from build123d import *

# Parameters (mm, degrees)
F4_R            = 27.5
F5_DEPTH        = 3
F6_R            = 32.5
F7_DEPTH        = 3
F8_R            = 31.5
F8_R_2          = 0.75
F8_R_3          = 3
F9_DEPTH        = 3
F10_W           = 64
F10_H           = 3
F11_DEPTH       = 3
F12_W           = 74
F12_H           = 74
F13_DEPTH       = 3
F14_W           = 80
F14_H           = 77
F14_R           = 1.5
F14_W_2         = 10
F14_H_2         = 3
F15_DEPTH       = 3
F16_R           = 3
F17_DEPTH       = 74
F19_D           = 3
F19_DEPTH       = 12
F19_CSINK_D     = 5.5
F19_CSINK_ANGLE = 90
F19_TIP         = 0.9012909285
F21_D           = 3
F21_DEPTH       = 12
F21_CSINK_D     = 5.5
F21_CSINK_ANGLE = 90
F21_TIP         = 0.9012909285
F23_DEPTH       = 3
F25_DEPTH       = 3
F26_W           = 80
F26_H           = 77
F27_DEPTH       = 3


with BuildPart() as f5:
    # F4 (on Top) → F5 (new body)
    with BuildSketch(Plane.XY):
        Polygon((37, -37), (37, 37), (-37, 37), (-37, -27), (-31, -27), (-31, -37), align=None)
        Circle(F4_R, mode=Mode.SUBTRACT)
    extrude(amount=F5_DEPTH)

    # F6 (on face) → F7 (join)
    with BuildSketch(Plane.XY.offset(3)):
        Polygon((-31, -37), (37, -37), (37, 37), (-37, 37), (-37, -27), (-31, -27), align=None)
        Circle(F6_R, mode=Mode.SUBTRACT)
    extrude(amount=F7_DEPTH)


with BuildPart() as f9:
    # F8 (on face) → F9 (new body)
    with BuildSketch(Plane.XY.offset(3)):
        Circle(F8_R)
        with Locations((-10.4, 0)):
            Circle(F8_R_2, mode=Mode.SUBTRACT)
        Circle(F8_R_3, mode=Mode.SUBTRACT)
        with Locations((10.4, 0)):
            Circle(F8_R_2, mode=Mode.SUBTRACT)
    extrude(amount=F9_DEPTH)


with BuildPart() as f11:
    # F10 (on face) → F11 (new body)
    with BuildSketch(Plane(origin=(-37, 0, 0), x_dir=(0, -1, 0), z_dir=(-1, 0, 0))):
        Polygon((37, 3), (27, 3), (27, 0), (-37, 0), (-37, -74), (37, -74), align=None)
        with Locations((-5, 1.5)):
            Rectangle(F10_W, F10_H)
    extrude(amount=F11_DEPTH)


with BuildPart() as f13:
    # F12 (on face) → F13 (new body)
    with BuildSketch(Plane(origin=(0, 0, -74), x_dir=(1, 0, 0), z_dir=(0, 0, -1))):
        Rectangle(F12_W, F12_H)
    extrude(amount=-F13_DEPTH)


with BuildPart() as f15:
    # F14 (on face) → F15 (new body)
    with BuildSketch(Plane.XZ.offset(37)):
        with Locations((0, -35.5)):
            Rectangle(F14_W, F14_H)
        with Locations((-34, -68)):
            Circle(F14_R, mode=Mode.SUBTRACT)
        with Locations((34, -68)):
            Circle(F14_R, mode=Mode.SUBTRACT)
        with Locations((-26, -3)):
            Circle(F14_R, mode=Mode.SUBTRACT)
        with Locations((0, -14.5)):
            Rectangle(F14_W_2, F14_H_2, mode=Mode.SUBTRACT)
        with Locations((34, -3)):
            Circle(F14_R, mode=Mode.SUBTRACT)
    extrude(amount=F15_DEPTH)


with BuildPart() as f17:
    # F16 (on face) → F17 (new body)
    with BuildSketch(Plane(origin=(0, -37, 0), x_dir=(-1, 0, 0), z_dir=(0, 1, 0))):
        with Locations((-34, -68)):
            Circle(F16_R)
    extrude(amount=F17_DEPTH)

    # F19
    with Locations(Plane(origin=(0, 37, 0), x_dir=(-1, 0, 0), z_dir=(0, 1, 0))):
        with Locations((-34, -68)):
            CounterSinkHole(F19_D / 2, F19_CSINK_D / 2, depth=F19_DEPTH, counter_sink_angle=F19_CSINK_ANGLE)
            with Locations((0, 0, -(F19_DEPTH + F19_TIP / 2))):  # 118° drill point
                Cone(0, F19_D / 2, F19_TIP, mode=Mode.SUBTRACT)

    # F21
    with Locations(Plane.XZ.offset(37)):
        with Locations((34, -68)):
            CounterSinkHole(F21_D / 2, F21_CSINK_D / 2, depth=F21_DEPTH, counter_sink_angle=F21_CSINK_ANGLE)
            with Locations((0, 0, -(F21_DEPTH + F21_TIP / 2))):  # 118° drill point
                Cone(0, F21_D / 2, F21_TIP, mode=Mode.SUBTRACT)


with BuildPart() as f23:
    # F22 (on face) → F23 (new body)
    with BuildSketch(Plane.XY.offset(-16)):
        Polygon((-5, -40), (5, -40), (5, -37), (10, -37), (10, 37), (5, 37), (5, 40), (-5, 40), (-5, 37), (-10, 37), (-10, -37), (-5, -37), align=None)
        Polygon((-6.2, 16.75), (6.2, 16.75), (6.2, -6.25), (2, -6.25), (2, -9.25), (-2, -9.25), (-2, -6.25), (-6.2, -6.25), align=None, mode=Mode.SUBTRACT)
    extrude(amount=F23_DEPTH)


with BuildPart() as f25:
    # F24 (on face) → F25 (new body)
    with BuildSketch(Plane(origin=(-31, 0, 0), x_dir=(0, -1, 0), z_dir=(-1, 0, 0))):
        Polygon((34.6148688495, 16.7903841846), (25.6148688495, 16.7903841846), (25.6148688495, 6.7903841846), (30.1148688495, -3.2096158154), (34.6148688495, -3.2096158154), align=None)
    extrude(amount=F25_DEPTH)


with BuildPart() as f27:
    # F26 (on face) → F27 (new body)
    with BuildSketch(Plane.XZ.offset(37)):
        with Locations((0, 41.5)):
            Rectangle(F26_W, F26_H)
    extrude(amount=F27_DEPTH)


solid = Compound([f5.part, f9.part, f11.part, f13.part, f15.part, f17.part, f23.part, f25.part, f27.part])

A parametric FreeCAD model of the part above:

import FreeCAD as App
import Part
import Sketcher
from FreeCAD import Vector


def add_polygon(sketch, points):
    """Adds a closed chain of lines whose ends are joined by coincident constraints."""
    first, n = sketch.GeometryCount, len(points)
    for a, b in zip(points, points[1:] + points[:1]):
        sketch.addGeometry(Part.LineSegment(App.Vector(*a, 0), App.Vector(*b, 0)), False)
    for i in range(n):
        sketch.addConstraint(Sketcher.Constraint("Coincident", first + i, 2, first + (i + 1) % n, 1))

doc = App.newDocument("Part")
body = doc.addObject("PartDesign::Body", "Body")

# Sketch on XY plane
sketch1 = body.newObject("Sketcher::SketchObject", "Sketch")
sketch1.AttachmentSupport = (doc.getObject("XY_Plane"), [""])
sketch1.MapMode = "FlatFace"
add_polygon(sketch1, [(37, -37), (37, 37), (-37, 37), (-37, -27), (-31, -27), (-31, -37)])  # lines 0-5
sketch1.addGeometry(Part.Circle(Vector(0, 0, 0), Vector(0, 0, 1), 27.5), False)  # 6
sketch1.addConstraint(Sketcher.Constraint("Vertical", 0))
sketch1.addConstraint(Sketcher.Constraint("Horizontal", 1))
sketch1.addConstraint(Sketcher.Constraint("Vertical", 2))
sketch1.addConstraint(Sketcher.Constraint("Horizontal", 3))
sketch1.addConstraint(Sketcher.Constraint("Vertical", 4))
sketch1.addConstraint(Sketcher.Constraint("Horizontal", 5))
sketch1.addConstraint(Sketcher.Constraint("Coincident", 6, 3, -1, 1))
sketch1.addConstraint(Sketcher.Constraint("Symmetric", 1, 2, 5, 2, -1, 1))
sketch1.addConstraint(Sketcher.Constraint("Equal", 1, 0))
sketch1.addConstraint(Sketcher.Constraint("Diameter", 6, 55.0))
sketch1.addConstraint(Sketcher.Constraint("DistanceX", 1, 2, 1, 1, 74.0))
sketch1.addConstraint(Sketcher.Constraint("DistanceX", 3, 1, 3, 2, 6.0))
sketch1.addConstraint(Sketcher.Constraint("DistanceY", 2, 2, 2, 1, 64.0))
pad1 = body.newObject("PartDesign::Pad", "Pad")
pad1.Profile = sketch1
pad1.Length = 3

# Sketch on XY plane
sketch2 = body.newObject("Sketcher::SketchObject", "Sketch001")
sketch2.AttachmentSupport = (doc.getObject("XY_Plane"), [""])
sketch2.MapMode = "FlatFace"
sketch2.AttachmentOffset = App.Placement(Vector(0, 0, 3), App.Rotation())
add_polygon(sketch2, [(-31, -37), (37, -37), (37, 37), (-37, 37), (-37, -27), (-31, -27)])  # lines 0-5
sketch2.addGeometry(Part.Circle(Vector(0, 0, 0), Vector(0, 0, 1), 32.5), False)  # 6
sketch2.addConstraint(Sketcher.Constraint("Horizontal", 0))
sketch2.addConstraint(Sketcher.Constraint("Vertical", 1))
sketch2.addConstraint(Sketcher.Constraint("Horizontal", 2))
sketch2.addConstraint(Sketcher.Constraint("Vertical", 3))
sketch2.addConstraint(Sketcher.Constraint("Horizontal", 4))
sketch2.addConstraint(Sketcher.Constraint("Vertical", 5))
sketch2.addConstraint(Sketcher.Constraint("Coincident", 6, 3, -1, 1))
sketch2.addConstraint(Sketcher.Constraint("Symmetric", 0, 2, 2, 2, -1, 1))
sketch2.addConstraint(Sketcher.Constraint("Equal", 2, 1))
sketch2.addConstraint(Sketcher.Constraint("Diameter", 6, 65.0))
sketch2.addConstraint(Sketcher.Constraint("DistanceX", 0, 1, 0, 2, 68.0))
sketch2.addConstraint(Sketcher.Constraint("DistanceX", 2, 2, 2, 1, 74.0))
sketch2.addConstraint(Sketcher.Constraint("DistanceY", 3, 2, 3, 1, 64.0))
pad2 = body.newObject("PartDesign::Pad", "Pad001")
pad2.Profile = sketch2
pad2.Length = 3
body2 = doc.addObject("PartDesign::Body", "Body001")

# Sketch on XY plane
sketch3 = body2.newObject("Sketcher::SketchObject", "Sketch002")
sketch3.AttachmentSupport = (doc.getObject("XY_Plane001"), [""])
sketch3.MapMode = "FlatFace"
sketch3.AttachmentOffset = App.Placement(Vector(0, 0, 3), App.Rotation())
sketch3.addGeometry(Part.Circle(Vector(0, 0, 0), Vector(0, 0, 1), 31.5), False)
sketch3.addGeometry(Part.Circle(Vector(-10.4, 0, 0), Vector(0, 0, 1), 0.75), False)
sketch3.addGeometry(Part.Circle(Vector(0, 0, 0), Vector(0, 0, 1), 3), False)
sketch3.addGeometry(Part.Circle(Vector(10.4, 0, 0), Vector(0, 0, 1), 0.75), False)
sketch3.addConstraint(Sketcher.Constraint("Coincident", 0, 3, -1, 1))
sketch3.addConstraint(Sketcher.Constraint("Coincident", 2, 3, -1, 1))
sketch3.addConstraint(Sketcher.Constraint("Equal", 1, 3))
sketch3.addConstraint(Sketcher.Constraint("Symmetric", 1, 3, 3, 3, -1, 1))
sketch3.addConstraint(Sketcher.Constraint("PointOnObject", 1, 3, -1))
sketch3.addConstraint(Sketcher.Constraint("Diameter", 0, 63.0))
sketch3.addConstraint(Sketcher.Constraint("Diameter", 2, 6.0))
sketch3.addConstraint(Sketcher.Constraint("Diameter", 1, 1.5))
sketch3.addConstraint(Sketcher.Constraint("DistanceX", 1, 3, -1, 1, 10.4))
pad3 = body2.newObject("PartDesign::Pad", "Pad002")
pad3.Profile = sketch3
pad3.Length = 3
body3 = doc.addObject("PartDesign::Body", "Body002")

# Sketch on YZ plane
sketch4 = body3.newObject("Sketcher::SketchObject", "Sketch003")
sketch4.AttachmentSupport = (doc.getObject("YZ_Plane002"), [""])
sketch4.MapMode = "FlatFace"
sketch4.AttachmentOffset = App.Placement(Vector(0, 0, -37), App.Rotation())
add_polygon(sketch4, [(-37, 3), (37, 3), (37, -74), (-37, -74)])  # lines 0-3
sketch4.addConstraint(Sketcher.Constraint("Horizontal", 0))
sketch4.addConstraint(Sketcher.Constraint("Vertical", 1))
sketch4.addConstraint(Sketcher.Constraint("Horizontal", 2))
sketch4.addConstraint(Sketcher.Constraint("Vertical", 3))
sketch4.addConstraint(Sketcher.Constraint("DistanceX", 0, 1, 0, 2, 74.0))
sketch4.addConstraint(Sketcher.Constraint("DistanceY", 1, 2, 1, 1, 77.0))
sketch4.addConstraint(Sketcher.Constraint("DistanceX", -1, 1, 0, 2, 37.0))
sketch4.addConstraint(Sketcher.Constraint("DistanceY", -1, 1, 0, 2, 3.0))
pad4 = body3.newObject("PartDesign::Pad", "Pad003")
pad4.Profile = sketch4
pad4.Length = 3
pad4.Reversed = True
body4 = doc.addObject("PartDesign::Body", "Body003")

# Sketch on XY plane
sketch5 = body4.newObject("Sketcher::SketchObject", "Sketch004")
sketch5.AttachmentSupport = (doc.getObject("XY_Plane003"), [""])
sketch5.MapMode = "FlatFace"
sketch5.AttachmentOffset = App.Placement(Vector(0, 0, -74), App.Rotation())
add_polygon(sketch5, [(-37, -37), (-37, 37), (37, 37), (37, -37)])  # lines 0-3
sketch5.addConstraint(Sketcher.Constraint("Vertical", 0))
sketch5.addConstraint(Sketcher.Constraint("Horizontal", 1))
sketch5.addConstraint(Sketcher.Constraint("Vertical", 2))
sketch5.addConstraint(Sketcher.Constraint("Horizontal", 3))
sketch5.addConstraint(Sketcher.Constraint("Symmetric", 0, 2, 2, 2, -1, 1))
sketch5.addConstraint(Sketcher.Constraint("Equal", 3, 0))
sketch5.addConstraint(Sketcher.Constraint("DistanceX", 1, 1, 1, 2, 74.0))
pad5 = body4.newObject("PartDesign::Pad", "Pad004")
pad5.Profile = sketch5
pad5.Length = 3
body5 = doc.addObject("PartDesign::Body", "Body004")

# Sketch on XZ plane
sketch6 = body5.newObject("Sketcher::SketchObject", "Sketch005")
sketch6.AttachmentSupport = (doc.getObject("XZ_Plane004"), [""])
sketch6.MapMode = "FlatFace"
sketch6.AttachmentOffset = App.Placement(Vector(0, 0, 37), App.Rotation())
add_polygon(sketch6, [(-40, 3), (-40, -74), (40, -74), (40, 3)])  # lines 0-3
sketch6.addGeometry(Part.Circle(Vector(-34, -68, 0), Vector(0, 0, 1), 1.5), False)  # 4
sketch6.addGeometry(Part.Circle(Vector(34, -68, 0), Vector(0, 0, 1), 1.5), False)  # 5
sketch6.addGeometry(Part.Circle(Vector(-26, -3, 0), Vector(0, 0, 1), 1.5), False)  # 6
add_polygon(sketch6, [(5, -16), (-5, -16), (-5, -13), (5, -13)])  # lines 7-10
sketch6.addGeometry(Part.Circle(Vector(34, -3, 0), Vector(0, 0, 1), 1.5), False)  # 11
sketch6.addConstraint(Sketcher.Constraint("Vertical", 0))
sketch6.addConstraint(Sketcher.Constraint("Horizontal", 1))
sketch6.addConstraint(Sketcher.Constraint("Vertical", 2))
sketch6.addConstraint(Sketcher.Constraint("Horizontal", 3))
sketch6.addConstraint(Sketcher.Constraint("Horizontal", 7))
sketch6.addConstraint(Sketcher.Constraint("Vertical", 8))
sketch6.addConstraint(Sketcher.Constraint("Horizontal", 9))
sketch6.addConstraint(Sketcher.Constraint("Vertical", 10))
sketch6.addConstraint(Sketcher.Constraint("Equal", 4, 5))
sketch6.addConstraint(Sketcher.Constraint("Equal", 5, 6))
sketch6.addConstraint(Sketcher.Constraint("Equal", 6, 11))
sketch6.addConstraint(Sketcher.Constraint("Symmetric", 4, 3, 5, 3, -2))
sketch6.addConstraint(Sketcher.Constraint("Horizontal", 6, 3, 11, 3))
sketch6.addConstraint(Sketcher.Constraint("Vertical", 5, 3, 11, 3))
sketch6.addConstraint(Sketcher.Constraint("Diameter", 4, 3.0))
sketch6.addConstraint(Sketcher.Constraint("DistanceX", 1, 1, 1, 2, 80.0))
sketch6.addConstraint(Sketcher.Constraint("DistanceX", 7, 2, 7, 1, 10.0))
sketch6.addConstraint(Sketcher.Constraint("DistanceY", 0, 2, 0, 1, 77.0))
sketch6.addConstraint(Sketcher.Constraint("DistanceY", 8, 1, 8, 2, 3.0))
sketch6.addConstraint(Sketcher.Constraint("DistanceX", 4, 3, -1, 1, 34.0))
sketch6.addConstraint(Sketcher.Constraint("DistanceY", 4, 3, -1, 1, 68.0))
sketch6.addConstraint(Sketcher.Constraint("DistanceX", 6, 3, -1, 1, 26.0))
sketch6.addConstraint(Sketcher.Constraint("DistanceY", 6, 3, -1, 1, 3.0))
sketch6.addConstraint(Sketcher.Constraint("DistanceX", 0, 2, -1, 1, 40.0))
sketch6.addConstraint(Sketcher.Constraint("DistanceY", 0, 2, -1, 1, 74.0))
sketch6.addConstraint(Sketcher.Constraint("DistanceX", 7, 2, -1, 1, 5.0))
sketch6.addConstraint(Sketcher.Constraint("DistanceY", 7, 2, -1, 1, 16.0))
pad6 = body5.newObject("PartDesign::Pad", "Pad005")
pad6.Profile = sketch6
pad6.Length = 3
body6 = doc.addObject("PartDesign::Body", "Body005")

# Sketch on XZ plane
sketch7 = body6.newObject("Sketcher::SketchObject", "Sketch006")
sketch7.AttachmentSupport = (doc.getObject("XZ_Plane005"), [""])
sketch7.MapMode = "FlatFace"
sketch7.AttachmentOffset = App.Placement(Vector(0, 0, 37), App.Rotation())
sketch7.addGeometry(Part.Circle(Vector(34, -68, 0), Vector(0, 0, 1), 3), False)
sketch7.addConstraint(Sketcher.Constraint("Diameter", 0, 6.0))
sketch7.addConstraint(Sketcher.Constraint("DistanceX", -1, 1, 0, 3, 34.0))
sketch7.addConstraint(Sketcher.Constraint("DistanceY", 0, 3, -1, 1, 68.0))
pad7 = body6.newObject("PartDesign::Pad", "Pad006")
pad7.Profile = sketch7
pad7.Length = 74
pad7.Reversed = True

# Sketch on XZ plane
sketch8 = body6.newObject("Sketcher::SketchObject", "Sketch007")
sketch8.AttachmentSupport = (doc.getObject("XZ_Plane005"), [""])
sketch8.MapMode = "FlatFace"
sketch8.AttachmentOffset = App.Placement(Vector(0, 0, -37), App.Rotation())
sketch8.addGeometry(Part.Circle(Vector(34, -68, 0), Vector(0, 0, 1), 1.5), False)
sketch8.addConstraint(Sketcher.Constraint("Diameter", 0, 3.0))
sketch8.addConstraint(Sketcher.Constraint("DistanceX", -1, 1, 0, 3, 34.0))
sketch8.addConstraint(Sketcher.Constraint("DistanceY", 0, 3, -1, 1, 68.0))
doc.recompute()
hole = body6.newObject("PartDesign::Hole", "Hole")
hole.Profile = sketch8
hole.ThreadType = "None"
hole.Diameter = 3
hole.DepthType = "Dimension"
hole.Depth = 12
hole.DrillPoint = "Angled"
hole.DrillPointAngle = 118
hole.HoleCutType = "Countersink"
hole.HoleCutDiameter = 5.5
hole.HoleCutCountersinkAngle = 90
hole.Reversed = True

# Sketch on XZ plane
sketch9 = body6.newObject("Sketcher::SketchObject", "Sketch008")
sketch9.AttachmentSupport = (doc.getObject("XZ_Plane005"), [""])
sketch9.MapMode = "FlatFace"
sketch9.AttachmentOffset = App.Placement(Vector(0, 0, 37), App.Rotation())
sketch9.addGeometry(Part.Circle(Vector(34, -68, 0), Vector(0, 0, 1), 1.5), False)
sketch9.addConstraint(Sketcher.Constraint("Diameter", 0, 3.0))
sketch9.addConstraint(Sketcher.Constraint("DistanceX", -1, 1, 0, 3, 34.0))
sketch9.addConstraint(Sketcher.Constraint("DistanceY", 0, 3, -1, 1, 68.0))
doc.recompute()
hole2 = body6.newObject("PartDesign::Hole", "Hole001")
hole2.Profile = sketch9
hole2.ThreadType = "None"
hole2.Diameter = 3
hole2.DepthType = "Dimension"
hole2.Depth = 12
hole2.DrillPoint = "Angled"
hole2.DrillPointAngle = 118
hole2.HoleCutType = "Countersink"
hole2.HoleCutDiameter = 5.5
hole2.HoleCutCountersinkAngle = 90
body7 = doc.addObject("PartDesign::Body", "Body006")

# Sketch on XY plane
sketch10 = body7.newObject("Sketcher::SketchObject", "Sketch009")
sketch10.AttachmentSupport = (doc.getObject("XY_Plane006"), [""])
sketch10.MapMode = "FlatFace"
sketch10.AttachmentOffset = App.Placement(Vector(0, 0, -16), App.Rotation())
add_polygon(sketch10, [(-5, -40), (5, -40), (5, -37), (10, -37), (10, 37), (5, 37), (5, 40), (-5, 40), (-5, 37), (-10, 37), (-10, -37), (-5, -37)])  # lines 0-11
add_polygon(sketch10, [(-6.2, -6.25), (-6.2, 16.75), (6.2, 16.75), (6.2, -6.25), (2, -6.25), (2, -9.25), (-2, -9.25), (-2, -6.25)])  # lines 12-19
sketch10.addConstraint(Sketcher.Constraint("Horizontal", 0))
sketch10.addConstraint(Sketcher.Constraint("Vertical", 1))
sketch10.addConstraint(Sketcher.Constraint("Horizontal", 2))
sketch10.addConstraint(Sketcher.Constraint("Vertical", 3))
sketch10.addConstraint(Sketcher.Constraint("Horizontal", 4))
sketch10.addConstraint(Sketcher.Constraint("Vertical", 5))
sketch10.addConstraint(Sketcher.Constraint("Horizontal", 6))
sketch10.addConstraint(Sketcher.Constraint("Vertical", 7))
sketch10.addConstraint(Sketcher.Constraint("Horizontal", 8))
sketch10.addConstraint(Sketcher.Constraint("Vertical", 9))
sketch10.addConstraint(Sketcher.Constraint("Horizontal", 10))
sketch10.addConstraint(Sketcher.Constraint("Vertical", 11))
sketch10.addConstraint(Sketcher.Constraint("Vertical", 12))
sketch10.addConstraint(Sketcher.Constraint("Horizontal", 13))
sketch10.addConstraint(Sketcher.Constraint("Vertical", 14))
sketch10.addConstraint(Sketcher.Constraint("Horizontal", 15))
sketch10.addConstraint(Sketcher.Constraint("Vertical", 16))
sketch10.addConstraint(Sketcher.Constraint("Horizontal", 17))
sketch10.addConstraint(Sketcher.Constraint("Vertical", 18))
sketch10.addConstraint(Sketcher.Constraint("Horizontal", 19))
sketch10.addConstraint(Sketcher.Constraint("Symmetric", 0, 2, 6, 2, -1, 1))
sketch10.addConstraint(Sketcher.Constraint("Symmetric", 2, 2, 8, 2, -1, 1))
sketch10.addConstraint(Sketcher.Constraint("Symmetric", 4, 2, 10, 2, -1, 1))
sketch10.addConstraint(Sketcher.Constraint("Symmetric", 4, 2, 7, 2, -2))
sketch10.addConstraint(Sketcher.Constraint("Symmetric", 15, 2, 18, 2, -2))
sketch10.addConstraint(Sketcher.Constraint("Equal", 15, 19))
sketch10.addConstraint(Sketcher.Constraint("Equal", 11, 16))
sketch10.addConstraint(Sketcher.Constraint("DistanceX", 0, 1, 0, 2, 10.0))
sketch10.addConstraint(Sketcher.Constraint("DistanceX", 2, 1, 2, 2, 5.0))
sketch10.addConstraint(Sketcher.Constraint("DistanceX", 17, 2, 17, 1, 4.0))
sketch10.addConstraint(Sketcher.Constraint("DistanceY", 1, 1, 1, 2, 3.0))
sketch10.addConstraint(Sketcher.Constraint("DistanceY", 3, 1, 3, 2, 74.0))
sketch10.addConstraint(Sketcher.Constraint("DistanceY", 12, 1, 12, 2, 23.0))
sketch10.addConstraint(Sketcher.Constraint("DistanceX", 13, 1, 13, 2, 12.4))
sketch10.addConstraint(Sketcher.Constraint("DistanceY", -1, 1, 12, 2, 16.75))
pad8 = body7.newObject("PartDesign::Pad", "Pad007")
pad8.Profile = sketch10
pad8.Length = 3
body8 = doc.addObject("PartDesign::Body", "Body007")

# Sketch on YZ plane
sketch11 = body8.newObject("Sketcher::SketchObject", "Sketch010")
sketch11.AttachmentSupport = (doc.getObject("YZ_Plane007"), [""])
sketch11.MapMode = "FlatFace"
sketch11.AttachmentOffset = App.Placement(Vector(0, 0, -31), App.Rotation())
add_polygon(sketch11, [(-34.614869, 16.790384), (-25.614869, 16.790384), (-25.614869, 6.790384), (-30.114869, -3.209616), (-34.614869, -3.209616)])  # lines 0-4
sketch11.addConstraint(Sketcher.Constraint("Horizontal", 0))
sketch11.addConstraint(Sketcher.Constraint("Vertical", 1))
sketch11.addConstraint(Sketcher.Constraint("Horizontal", 3))
sketch11.addConstraint(Sketcher.Constraint("Vertical", 4))
sketch11.addConstraint(Sketcher.Constraint("DistanceX", 0, 1, 0, 2, 9.0))
sketch11.addConstraint(Sketcher.Constraint("DistanceY", 1, 2, 1, 1, 10.0))
sketch11.addConstraint(Sketcher.Constraint("DistanceY", 4, 1, 4, 2, 20.0))
sketch11.addConstraint(Sketcher.Constraint("DistanceX", 3, 2, 3, 1, 4.5))
sketch11.addConstraint(Sketcher.Constraint("DistanceX", 0, 2, -1, 1, 25.614869))
sketch11.addConstraint(Sketcher.Constraint("DistanceY", -1, 1, 0, 2, 16.790384))
pad9 = body8.newObject("PartDesign::Pad", "Pad008")
pad9.Profile = sketch11
pad9.Length = 3
pad9.Reversed = True
body9 = doc.addObject("PartDesign::Body", "Body008")

# Sketch on XZ plane
sketch12 = body9.newObject("Sketcher::SketchObject", "Sketch011")
sketch12.AttachmentSupport = (doc.getObject("XZ_Plane008"), [""])
sketch12.MapMode = "FlatFace"
sketch12.AttachmentOffset = App.Placement(Vector(0, 0, 37), App.Rotation())
add_polygon(sketch12, [(-40, 80), (-40, 3), (40, 3), (40, 80)])  # lines 0-3
sketch12.addConstraint(Sketcher.Constraint("Vertical", 0))
sketch12.addConstraint(Sketcher.Constraint("Horizontal", 1))
sketch12.addConstraint(Sketcher.Constraint("Vertical", 2))
sketch12.addConstraint(Sketcher.Constraint("Horizontal", 3))
sketch12.addConstraint(Sketcher.Constraint("DistanceX", 1, 1, 1, 2, 80.0))
sketch12.addConstraint(Sketcher.Constraint("DistanceY", 0, 2, 0, 1, 77.0))
sketch12.addConstraint(Sketcher.Constraint("DistanceX", 0, 2, -1, 1, 40.0))
sketch12.addConstraint(Sketcher.Constraint("DistanceY", -1, 1, 0, 2, 3.0))
pad10 = body9.newObject("PartDesign::Pad", "Pad009")
pad10.Profile = sketch12
pad10.Length = 3

doc.recompute()
